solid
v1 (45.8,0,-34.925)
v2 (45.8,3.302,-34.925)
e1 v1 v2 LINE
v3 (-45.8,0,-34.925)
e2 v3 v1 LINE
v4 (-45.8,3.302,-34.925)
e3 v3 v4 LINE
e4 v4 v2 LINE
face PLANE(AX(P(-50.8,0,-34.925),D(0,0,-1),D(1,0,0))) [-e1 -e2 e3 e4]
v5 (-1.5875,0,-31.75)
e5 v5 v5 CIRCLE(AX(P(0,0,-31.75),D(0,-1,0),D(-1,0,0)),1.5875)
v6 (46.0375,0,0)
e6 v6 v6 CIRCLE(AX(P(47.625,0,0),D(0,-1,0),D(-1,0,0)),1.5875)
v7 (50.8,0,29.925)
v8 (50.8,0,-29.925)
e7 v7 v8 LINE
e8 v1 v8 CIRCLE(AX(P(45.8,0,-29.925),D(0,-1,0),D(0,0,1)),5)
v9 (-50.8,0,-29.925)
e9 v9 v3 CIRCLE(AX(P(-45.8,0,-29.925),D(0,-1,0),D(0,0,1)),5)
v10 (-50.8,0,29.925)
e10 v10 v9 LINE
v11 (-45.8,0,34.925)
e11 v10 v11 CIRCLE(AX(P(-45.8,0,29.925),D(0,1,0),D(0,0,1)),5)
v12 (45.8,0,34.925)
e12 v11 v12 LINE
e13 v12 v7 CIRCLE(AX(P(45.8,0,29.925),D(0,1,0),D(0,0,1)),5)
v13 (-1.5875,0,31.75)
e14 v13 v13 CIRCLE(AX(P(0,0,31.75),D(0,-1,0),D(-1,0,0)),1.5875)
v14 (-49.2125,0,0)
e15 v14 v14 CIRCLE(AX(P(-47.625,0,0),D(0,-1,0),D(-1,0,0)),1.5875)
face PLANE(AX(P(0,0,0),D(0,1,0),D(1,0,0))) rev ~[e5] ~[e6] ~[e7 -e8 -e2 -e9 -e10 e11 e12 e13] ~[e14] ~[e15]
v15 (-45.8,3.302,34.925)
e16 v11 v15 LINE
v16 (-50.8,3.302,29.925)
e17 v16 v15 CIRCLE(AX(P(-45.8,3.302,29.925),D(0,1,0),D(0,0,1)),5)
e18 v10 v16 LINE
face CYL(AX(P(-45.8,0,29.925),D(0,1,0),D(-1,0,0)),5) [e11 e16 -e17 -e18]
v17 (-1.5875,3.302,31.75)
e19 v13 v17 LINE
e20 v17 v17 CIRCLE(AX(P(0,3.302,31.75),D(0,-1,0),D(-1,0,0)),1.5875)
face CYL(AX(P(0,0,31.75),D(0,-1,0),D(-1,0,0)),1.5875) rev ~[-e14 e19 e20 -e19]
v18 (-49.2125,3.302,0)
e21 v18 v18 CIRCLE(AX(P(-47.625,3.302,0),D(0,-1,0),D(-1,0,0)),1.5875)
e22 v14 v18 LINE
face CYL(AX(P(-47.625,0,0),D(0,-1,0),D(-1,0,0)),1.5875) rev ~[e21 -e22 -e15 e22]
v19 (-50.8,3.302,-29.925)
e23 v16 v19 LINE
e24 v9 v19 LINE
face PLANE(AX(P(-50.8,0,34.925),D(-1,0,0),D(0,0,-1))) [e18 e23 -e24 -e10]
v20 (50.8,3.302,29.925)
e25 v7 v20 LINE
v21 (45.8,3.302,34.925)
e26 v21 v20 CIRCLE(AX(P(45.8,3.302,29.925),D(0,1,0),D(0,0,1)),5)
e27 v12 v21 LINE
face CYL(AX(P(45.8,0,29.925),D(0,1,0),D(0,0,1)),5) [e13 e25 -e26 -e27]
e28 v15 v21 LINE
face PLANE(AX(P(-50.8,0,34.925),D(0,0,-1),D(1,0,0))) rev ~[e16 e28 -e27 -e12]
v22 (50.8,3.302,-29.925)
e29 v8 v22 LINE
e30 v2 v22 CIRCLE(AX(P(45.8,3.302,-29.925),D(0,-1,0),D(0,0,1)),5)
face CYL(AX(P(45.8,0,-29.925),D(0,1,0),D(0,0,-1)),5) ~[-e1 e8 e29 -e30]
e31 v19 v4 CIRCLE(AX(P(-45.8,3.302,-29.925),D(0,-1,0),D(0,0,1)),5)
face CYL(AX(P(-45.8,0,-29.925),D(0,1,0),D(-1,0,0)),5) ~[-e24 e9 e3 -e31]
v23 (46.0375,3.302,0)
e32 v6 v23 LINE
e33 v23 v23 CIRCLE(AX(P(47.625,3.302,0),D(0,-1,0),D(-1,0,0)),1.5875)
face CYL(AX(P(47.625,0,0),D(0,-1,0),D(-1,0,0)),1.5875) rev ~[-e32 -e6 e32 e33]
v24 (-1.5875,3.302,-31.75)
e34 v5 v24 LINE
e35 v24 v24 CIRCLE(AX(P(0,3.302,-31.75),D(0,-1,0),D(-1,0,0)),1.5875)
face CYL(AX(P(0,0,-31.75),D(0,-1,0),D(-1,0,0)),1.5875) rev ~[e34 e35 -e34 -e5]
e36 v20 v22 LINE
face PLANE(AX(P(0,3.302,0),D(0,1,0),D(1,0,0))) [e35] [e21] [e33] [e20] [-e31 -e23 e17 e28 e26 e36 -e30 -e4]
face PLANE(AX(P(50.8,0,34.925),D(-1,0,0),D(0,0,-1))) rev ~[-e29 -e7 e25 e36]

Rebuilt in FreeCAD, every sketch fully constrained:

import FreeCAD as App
import Part
import Sketcher

V = App.Vector
Q = App.Units.Quantity


def edges_at(feature, points):
    """Names of the edges that pass closest to the given points."""
    edges = feature.Shape.Edges
    near = lambda p: min(range(len(edges)), key=lambda i: edges[i].distToShape(Part.Vertex(*p))[0])
    return sorted({f"Edge{near(p) + 1}" for p in points})

doc = App.newDocument("Part")
body = doc.addObject("PartDesign::Body", "Body")

# Sketch on XZ plane
sketch1 = body.newObject("Sketcher::SketchObject", "Sketch")
sketch1.AttachmentSupport = (doc.getObject("XZ_Plane"), [""])
sketch1.MapMode = "FlatFace"
sketch1.addGeometry([
    Part.LineSegment(V(-51, -35, 0), V(-51, 35, 0)),
    Part.LineSegment(V(-51, 35, 0), V(51, 35, 0)),
    Part.LineSegment(V(51, 35, 0), V(51, -35, 0)),
    Part.LineSegment(V(51, -35, 0), V(-51, -35, 0)),
], False)
sketch1.addConstraint([
    Sketcher.Constraint("Coincident", 0, 2, 1, 1),
    Sketcher.Constraint("Coincident", 1, 2, 2, 1),
    Sketcher.Constraint("Coincident", 2, 2, 3, 1),
    Sketcher.Constraint("Coincident", 3, 2, 0, 1),
    Sketcher.Constraint("Vertical", 0),
    Sketcher.Constraint("Horizontal", 1),
    Sketcher.Constraint("Vertical", 2),
    Sketcher.Constraint("Horizontal", 3),
    Sketcher.Constraint("Symmetric", 0, 2, 2, 2, -1, 1),
    Sketcher.Constraint("DistanceX", 1, 1, 1, 2, Q("4 in")),
    Sketcher.Constraint("DistanceY", 0, 1, 0, 2, Q("2.75 in")),
])
pad1 = body.newObject("PartDesign::Pad", "Pad")
pad1.Profile = sketch1
pad1.Length = Q("0.13 in")
pad1.Reversed = True

# Sketch on XZ plane
sketch2 = body.newObject("Sketcher::SketchObject", "Sketch001")
sketch2.AttachmentSupport = (doc.getObject("XZ_Plane"), [""])
sketch2.MapMode = "FlatFace"
sketch2.addGeometry([
    Part.Circle(V(0, -31.8, 0), V(0, 0, 1), 1.6),
    Part.Circle(V(47.6, 0, 0), V(0, 0, 1), 1.6),
    Part.Circle(V(0, 31.8, 0), V(0, 0, 1), 1.6),
    Part.Circle(V(-47.6, 0, 0), V(0, 0, 1), 1.6),
], False)
sketch2.addConstraint([
    Sketcher.Constraint("Equal", 0, 1),
    Sketcher.Constraint("Equal", 1, 2),
    Sketcher.Constraint("Equal", 2, 3),
    Sketcher.Constraint("Symmetric", 0, 3, 2, 3, -1, 1),
    Sketcher.Constraint("Symmetric", 1, 3, 3, 3, -1, 1),
    Sketcher.Constraint("PointOnObject", 0, 3, -2),
    Sketcher.Constraint("PointOnObject", 1, 3, -1),
    Sketcher.Constraint("Diameter", 0, Q("0.125 in")),
    Sketcher.Constraint("DistanceY", 0, 3, 2, 3, Q("2.5 in")),
    Sketcher.Constraint("DistanceX", 3, 3, 1, 3, Q("3.75 in")),
])
pocket1 = body.newObject("PartDesign::Pocket", "Pocket")
pocket1.Profile = sketch2
pocket1.Type = "ThroughAll"
doc.recompute()

fillet = body.newObject("PartDesign::Fillet", "Fillet")
fillet.Base = (pocket1, edges_at(pocket1, [
    (50.8, 1.651, 34.925),
    (-50.8, 1.651, 34.925),
    (-50.8, 1.651, -34.925),
    (50.8, 1.651, -34.925),
]))
fillet.Radius = 5

doc.recompute()
